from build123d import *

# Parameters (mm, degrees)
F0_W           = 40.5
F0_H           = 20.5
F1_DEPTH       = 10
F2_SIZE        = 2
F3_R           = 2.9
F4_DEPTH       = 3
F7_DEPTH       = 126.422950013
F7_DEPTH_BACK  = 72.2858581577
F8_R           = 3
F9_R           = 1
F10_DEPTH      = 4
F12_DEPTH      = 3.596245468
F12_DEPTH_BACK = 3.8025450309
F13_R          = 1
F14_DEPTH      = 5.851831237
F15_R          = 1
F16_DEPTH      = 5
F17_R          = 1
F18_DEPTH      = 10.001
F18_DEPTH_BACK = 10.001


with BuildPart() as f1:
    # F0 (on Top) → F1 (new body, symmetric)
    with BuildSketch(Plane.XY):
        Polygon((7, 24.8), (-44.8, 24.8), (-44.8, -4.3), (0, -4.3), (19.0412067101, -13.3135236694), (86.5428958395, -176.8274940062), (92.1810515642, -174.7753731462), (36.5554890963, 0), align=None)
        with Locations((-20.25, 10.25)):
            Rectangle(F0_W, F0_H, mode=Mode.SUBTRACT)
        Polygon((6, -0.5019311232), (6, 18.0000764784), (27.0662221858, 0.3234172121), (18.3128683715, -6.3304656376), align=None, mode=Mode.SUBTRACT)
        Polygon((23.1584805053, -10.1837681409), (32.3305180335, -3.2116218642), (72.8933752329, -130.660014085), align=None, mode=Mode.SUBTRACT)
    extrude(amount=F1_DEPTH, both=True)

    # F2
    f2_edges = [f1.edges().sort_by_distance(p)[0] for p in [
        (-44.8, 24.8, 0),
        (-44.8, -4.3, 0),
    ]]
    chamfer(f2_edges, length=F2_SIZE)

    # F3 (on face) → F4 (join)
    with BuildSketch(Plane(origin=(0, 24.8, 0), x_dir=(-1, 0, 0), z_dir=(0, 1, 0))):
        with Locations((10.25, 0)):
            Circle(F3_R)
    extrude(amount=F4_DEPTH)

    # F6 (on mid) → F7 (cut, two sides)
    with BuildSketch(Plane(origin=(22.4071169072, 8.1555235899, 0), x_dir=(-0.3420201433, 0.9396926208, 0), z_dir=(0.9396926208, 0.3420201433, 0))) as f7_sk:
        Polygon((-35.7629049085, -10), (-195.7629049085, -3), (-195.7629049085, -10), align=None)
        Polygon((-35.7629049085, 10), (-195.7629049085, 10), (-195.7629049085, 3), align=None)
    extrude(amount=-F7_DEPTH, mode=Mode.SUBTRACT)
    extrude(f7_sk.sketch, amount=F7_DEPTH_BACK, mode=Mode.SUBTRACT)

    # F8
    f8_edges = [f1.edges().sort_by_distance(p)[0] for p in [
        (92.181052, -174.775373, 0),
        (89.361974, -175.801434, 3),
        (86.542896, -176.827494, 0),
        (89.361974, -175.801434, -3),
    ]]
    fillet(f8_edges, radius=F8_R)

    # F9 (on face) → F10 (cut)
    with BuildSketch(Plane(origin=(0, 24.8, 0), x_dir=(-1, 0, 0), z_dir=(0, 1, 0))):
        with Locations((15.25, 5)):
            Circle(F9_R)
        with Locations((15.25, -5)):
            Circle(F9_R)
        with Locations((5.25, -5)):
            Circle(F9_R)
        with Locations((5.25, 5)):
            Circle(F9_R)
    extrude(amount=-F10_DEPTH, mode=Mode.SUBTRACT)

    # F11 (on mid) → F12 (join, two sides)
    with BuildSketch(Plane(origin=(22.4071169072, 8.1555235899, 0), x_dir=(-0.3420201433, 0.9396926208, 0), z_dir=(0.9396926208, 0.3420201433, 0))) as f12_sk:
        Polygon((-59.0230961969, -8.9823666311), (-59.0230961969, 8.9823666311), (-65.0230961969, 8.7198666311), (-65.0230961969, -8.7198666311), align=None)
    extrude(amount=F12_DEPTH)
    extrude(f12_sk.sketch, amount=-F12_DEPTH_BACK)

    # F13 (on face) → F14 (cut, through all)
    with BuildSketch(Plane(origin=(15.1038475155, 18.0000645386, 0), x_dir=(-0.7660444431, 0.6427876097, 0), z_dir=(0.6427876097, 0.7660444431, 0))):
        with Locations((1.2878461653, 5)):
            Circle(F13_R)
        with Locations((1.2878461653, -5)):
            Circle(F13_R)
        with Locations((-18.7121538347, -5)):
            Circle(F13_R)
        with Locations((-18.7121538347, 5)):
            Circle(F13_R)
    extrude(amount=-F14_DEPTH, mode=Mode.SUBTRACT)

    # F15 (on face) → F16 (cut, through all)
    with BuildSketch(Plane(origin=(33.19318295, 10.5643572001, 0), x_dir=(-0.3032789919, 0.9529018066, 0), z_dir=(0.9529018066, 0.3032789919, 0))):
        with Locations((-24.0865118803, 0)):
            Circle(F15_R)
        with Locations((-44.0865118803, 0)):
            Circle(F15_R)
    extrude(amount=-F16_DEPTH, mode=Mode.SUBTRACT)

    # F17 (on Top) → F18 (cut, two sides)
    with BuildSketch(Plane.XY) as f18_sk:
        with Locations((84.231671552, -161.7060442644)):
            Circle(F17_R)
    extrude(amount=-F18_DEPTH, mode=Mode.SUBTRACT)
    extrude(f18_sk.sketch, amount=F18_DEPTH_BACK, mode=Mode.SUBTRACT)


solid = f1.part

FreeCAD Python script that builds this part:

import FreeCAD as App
import Part
import Sketcher

V = App.Vector
Q = App.Units.Quantity


def edges_at(feature, points):
    """Names of the edges that pass closest to the given points."""
    edges = feature.Shape.Edges
    near = lambda p: min(range(len(edges)), key=lambda i: edges[i].distToShape(Part.Vertex(*p))[0])
    return sorted({f"Edge{near(p) + 1}" for p in points})


def add_polygon(sketch, points):
    """Adds a closed chain of lines whose ends are joined by coincident constraints."""
    first, n = sketch.GeometryCount, len(points)
    for a, b in zip(points, points[1:] + points[:1]):
        sketch.addGeometry(Part.LineSegment(App.Vector(*a, 0), App.Vector(*b, 0)), False)
    for i in range(n):
        sketch.addConstraint(Sketcher.Constraint("Coincident", first + i, 2, first + (i + 1) % n, 1))

doc = App.newDocument("Part")
body = doc.addObject("PartDesign::Body", "Body")

# Sketch on XY plane
sketch1 = body.newObject("Sketcher::SketchObject", "Sketch")
sketch1.AttachmentSupport = (doc.getObject("XY_Plane"), [""])
sketch1.MapMode = "FlatFace"
add_polygon(sketch1, [(7, 24.8), (-44.8, 24.8), (-44.8, -4.3), (0, -4.3), (19.041207, -13.313524), (86.542896, -176.827494), (92.181052, -174.775373), (36.555489, 0)])  # lines 0-7
add_polygon(sketch1, [(72.893375, -130.660014), (23.158481, -10.183768), (32.330518, -3.211622)])  # lines 8-10
add_polygon(sketch1, [(0, 0), (-40.5, 0), (-40.5, 20.5), (0, 20.5)])  # lines 11-14
add_polygon(sketch1, [(18.312868, -6.330466), (6, -0.501931), (6, 18.000076), (27.066222, 0.323417)])  # lines 15-18
sketch1.addConstraint([
    Sketcher.Constraint("Horizontal", 0),
    Sketcher.Constraint("Vertical", 1),
    Sketcher.Constraint("Horizontal", 2),
    Sketcher.Constraint("Horizontal", 11),
    Sketcher.Constraint("Vertical", 12),
    Sketcher.Constraint("Horizontal", 13),
    Sketcher.Constraint("Vertical", 14),
    Sketcher.Constraint("Vertical", 16),
    Sketcher.Constraint("Coincident", 14, 2, -1, 1),
    Sketcher.Constraint("PointOnObject", 2, 2, -2),
    Sketcher.Constraint("PointOnObject", 6, 2, -1),
    Sketcher.Constraint("Distance", 5, Q("6 mm")),
    Sketcher.Constraint("DistanceX", 0, 2, 0, 1, Q("51.8 mm")),
    Sketcher.Constraint("DistanceX", 2, 1, 2, 2, Q("44.8 mm")),
    Sketcher.Constraint("DistanceX", 11, 2, 11, 1, Q("40.5 mm")),
    Sketcher.Constraint("DistanceY", 1, 2, 1, 1, Q("29.1 mm")),
    Sketcher.Constraint("DistanceY", 12, 1, 12, 2, Q("20.5 mm")),
    Sketcher.Constraint("DistanceX", -1, 1, 15, 2, Q("6 mm")),
    Sketcher.Constraint("Distance", 17, Q("27.5 mm")),
    Sketcher.Constraint("DistanceY", -1, 1, 0, 2, Q("24.8 mm")),
    Sketcher.Constraint("DistanceY", 3, 2, 9, 2, Q("10.101902 mm")),
    Sketcher.Constraint("Distance", 7, Q("38.581951 mm")),
    Sketcher.Constraint("Distance", 8, Q("130.33835 mm")),
    Sketcher.Constraint("Distance", 9, Q("11.521159 mm")),
    Sketcher.Constraint("Distance", 15, Q("13.622722 mm")),
    Sketcher.Constraint("DistanceY", 16, 1, 16, 2, Q("18.502008 mm")),
    Sketcher.Constraint("DistanceX", -1, 1, 5, 2, Q("92.181052 mm")),
    Sketcher.Constraint("DistanceX", -1, 1, 8, 2, Q("23.158481 mm")),
    Sketcher.Constraint("DistanceY", 8, 2, -1, 1, Q("10.183768 mm")),
    Sketcher.Constraint("DistanceX", -1, 1, 9, 2, Q("32.330518 mm")),
    Sketcher.Constraint("DistanceY", 15, 2, -1, 1, Q("0.501931 mm")),
    Sketcher.Constraint("DistanceX", -1, 1, 18, 2, Q("18.312868 mm")),
    Sketcher.Constraint("DistanceX", 3, 2, 4, 2, Q("67.501689 mm")),
    Sketcher.Constraint("DistanceY", 4, 2, 3, 2, Q("163.51397 mm")),
    Sketcher.Constraint("DistanceY", 4, 2, 5, 2, Q("2.052121 mm")),
    Sketcher.Constraint("DistanceX", 10, 2, 4, 2, Q("13.649521 mm")),
    Sketcher.Constraint("DistanceY", 9, 2, 17, 2, Q("3.535039 mm")),
])
pad1 = body.newObject("PartDesign::Pad", "Pad")
pad1.Profile = sketch1
pad1.Length = 20
pad1.Midplane = True
doc.recompute()

chamfer = body.newObject("PartDesign::Chamfer", "Chamfer")
chamfer.Base = (pad1, edges_at(pad1, [(-44.8, 24.8, 0), (-44.8, -4.3, 0)]))
chamfer.Size = 2

# Sketch on XZ plane
sketch2 = body.newObject("Sketcher::SketchObject", "Sketch001")
sketch2.AttachmentSupport = (doc.getObject("XZ_Plane"), [""])
sketch2.MapMode = "FlatFace"
sketch2.AttachmentOffset = App.Placement(V(0, 0, -24.8), App.Rotation())
sketch2.addGeometry(Part.Circle(V(-10.2, 0, 0), V(0, 0, 1), 2.9), False)
sketch2.addConstraint([
    Sketcher.Constraint("PointOnObject", 0, 3, -1),
    Sketcher.Constraint("Diameter", 0, Q("5.8 mm")),
    Sketcher.Constraint("DistanceX", 0, 3, -1, 1, Q("10.25 mm")),
])
pad2 = body.newObject("PartDesign::Pad", "Pad001")
pad2.Profile = sketch2
pad2.Length = 3
pad2.Reversed = True

# Sketch on an angled plane
sketch3 = body.newObject("Sketcher::SketchObject", "Sketch002")
sketch3.Placement = App.Placement(V(22.407117, 8.155524, 0), App.Rotation(V(-0.342020143, 0.939692621, 0), V(0, 0, 1), V(0.939692621, 0.342020143, 0), "ZXY"))
add_polygon(sketch3, [(-36, -10), (-196, -3), (-196, -10)])  # lines 0-2
add_polygon(sketch3, [(-36, 10), (-196, 10), (-196, 3)])  # lines 3-5
sketch3.addConstraint([
    Sketcher.Constraint("Vertical", 1),
    Sketcher.Constraint("Horizontal", 2),
    Sketcher.Constraint("Horizontal", 3),
    Sketcher.Constraint("Vertical", 4),
    Sketcher.Constraint("Symmetric", 1, 2, 3, 2, -1),
    Sketcher.Constraint("Vertical", 2, 2, 5, 2),
    Sketcher.Constraint("Equal", 1, 4),
    Sketcher.Constraint("DistanceX", 2, 1, 2, 2, Q("160 mm")),
    Sketcher.Constraint("DistanceY", 1, 2, 1, 1, Q("7 mm")),
    Sketcher.Constraint("DistanceY", 0, 2, -1, 1, Q("3 mm")),
    Sketcher.Constraint("DistanceX", 0, 2, -1, 1, Q("195.762905 mm")),
])
pocket1 = body.newObject("PartDesign::Pocket", "Pocket")
pocket1.Profile = sketch3
pocket1.Type = "ThroughAll"
pocket1.Midplane = True
doc.recompute()

fillet = body.newObject("PartDesign::Fillet", "Fillet")
fillet.Base = (pocket1, edges_at(pocket1, [
    (92.181, -174.775, 0),
    (89.362, -175.801, 3),
    (86.543, -176.827, 0),
    (89.362, -175.801, -3),
]))
fillet.Radius = 3

# Sketch on XZ plane
sketch4 = body.newObject("Sketcher::SketchObject", "Sketch003")
sketch4.AttachmentSupport = (doc.getObject("XZ_Plane"), [""])
sketch4.MapMode = "FlatFace"
sketch4.AttachmentOffset = App.Placement(V(0, 0, -24.8), App.Rotation())
sketch4.addGeometry([
    Part.Circle(V(-15.2, 5, 0), V(0, 0, 1), 1),
    Part.Circle(V(-15.2, -5, 0), V(0, 0, 1), 1),
    Part.Circle(V(-5.2, -5, 0), V(0, 0, 1), 1),
    Part.Circle(V(-5.2, 5, 0), V(0, 0, 1), 1),
], False)
sketch4.addConstraint([
    Sketcher.Constraint("Equal", 0, 1),
    Sketcher.Constraint("Equal", 1, 2),
    Sketcher.Constraint("Equal", 2, 3),
    Sketcher.Constraint("Symmetric", 0, 3, 1, 3, -1),
    Sketcher.Constraint("Symmetric", 2, 3, 3, 3, -1),
    Sketcher.Constraint("Horizontal", 1, 3, 2, 3),
    Sketcher.Constraint("Diameter", 0, Q("2 mm")),
    Sketcher.Constraint("DistanceY", -1, 1, 0, 3, Q("5 mm")),
    Sketcher.Constraint("DistanceX", 1, 3, 2, 3, Q("10 mm")),
    Sketcher.Constraint("DistanceX", 0, 3, -1, 1, Q("15.25 mm")),
])
pocket2 = body.newObject("PartDesign::Pocket", "Pocket001")
pocket2.Profile = sketch4
pocket2.Length = 4
pocket2.Reversed = True

# Sketch on an angled plane
sketch5 = body.newObject("Sketcher::SketchObject", "Sketch004")
sketch5.Placement = App.Placement(V(22.407117, 8.155524, 0), App.Rotation(V(-0.342020143, 0.939692621, 0), V(0, 0, 1), V(0.939692621, 0.342020143, 0), "ZXY"))
add_polygon(sketch5, [(-59.023096, -8.982367), (-59.023096, 8.982367), (-65.023096, 8.719867), (-65.023096, -8.719867)])  # lines 0-3
sketch5.addConstraint([
    Sketcher.Constraint("Vertical", 0),
    Sketcher.Constraint("Vertical", 2),
    Sketcher.Constraint("Equal", 1, 3),
    Sketcher.Constraint("DistanceX", 1, 2, 0, 2, Q("6 mm")),
    Sketcher.Constraint("DistanceY", 1, 2, 0, 2, Q("0.2625 mm")),
    Sketcher.Constraint("DistanceY", 0, 1, 0, 2, Q("17.964733 mm")),
    Sketcher.Constraint("DistanceX", 0, 2, -1, 1, Q("59.023096 mm")),
    Sketcher.Constraint("DistanceY", -1, 1, 0, 2, Q("8.982367 mm")),
])
pad3 = body.newObject("PartDesign::Pad", "Pad002")
pad3.Profile = sketch5
pad3.Type = "TwoLengths"
pad3.Length = 3.596245
pad3.Length2 = 3.802545

# Sketch on an angled plane
sketch6 = body.newObject("Sketcher::SketchObject", "Sketch005")
sketch6.Placement = App.Placement(V(15.103848, 18.000065, 0), App.Rotation(V(-0.766044443, 0.64278761, 0), V(0, 0, 1), V(0.64278761, 0.766044443, 0), "ZXY"))
sketch6.addGeometry([
    Part.Circle(V(1.3, 5, 0), V(0, 0, 1), 1),
    Part.Circle(V(1.3, -5, 0), V(0, 0, 1), 1),
    Part.Circle(V(-18.7, -5, 0), V(0, 0, 1), 1),
    Part.Circle(V(-18.7, 5, 0), V(0, 0, 1), 1),
], False)
sketch6.addConstraint([
    Sketcher.Constraint("Equal", 0, 1),
    Sketcher.Constraint("Equal", 1, 2),
    Sketcher.Constraint("Equal", 2, 3),
    Sketcher.Constraint("Symmetric", 0, 3, 1, 3, -1),
    Sketcher.Constraint("Symmetric", 2, 3, 3, 3, -1),
    Sketcher.Constraint("Horizontal", 1, 3, 2, 3),
    Sketcher.Constraint("Diameter", 0, Q("2 mm")),
    Sketcher.Constraint("DistanceY", -1, 1, 0, 3, Q("5 mm")),
    Sketcher.Constraint("DistanceX", 2, 3, 1, 3, Q("20 mm")),
    Sketcher.Constraint("DistanceX", -1, 1, 0, 3, Q("1.287846 mm")),
])
pocket3 = body.newObject("PartDesign::Pocket", "Pocket002")
pocket3.Profile = sketch6
pocket3.Length = 5.851831

# Sketch on an angled plane
sketch7 = body.newObject("Sketcher::SketchObject", "Sketch006")
sketch7.Placement = App.Placement(V(33.193183, 10.564357, 0), App.Rotation(V(-0.303278992, 0.952901807, 0), V(0, 0, 1.000000001), V(0.952901807, 0.303278992, 0), "ZXY"))
sketch7.addGeometry([
    Part.Circle(V(-24.1, 0, 0), V(0, 0, 1), 1),
    Part.Circle(V(-44.1, 0, 0), V(0, 0, 1), 1),
], False)
sketch7.addConstraint([
    Sketcher.Constraint("Equal", 0, 1),
    Sketcher.Constraint("PointOnObject", 0, 3, -1),
    Sketcher.Constraint("PointOnObject", 1, 3, -1),
    Sketcher.Constraint("Diameter", 0, Q("2 mm")),
    Sketcher.Constraint("DistanceX", 1, 3, 0, 3, Q("20 mm")),
    Sketcher.Constraint("DistanceX", 0, 3, -1, 1, Q("24.086512 mm")),
])
pocket4 = body.newObject("PartDesign::Pocket", "Pocket003")
pocket4.Profile = sketch7
pocket4.Length = 5

# Sketch on XY plane
sketch8 = body.newObject("Sketcher::SketchObject", "Sketch007")
sketch8.AttachmentSupport = (doc.getObject("XY_Plane"), [""])
sketch8.MapMode = "FlatFace"
sketch8.addGeometry(Part.Circle(V(84.2, -161.7, 0), V(0, 0, 1), 1), False)
sketch8.addConstraint([
    Sketcher.Constraint("Diameter", 0, Q("2 mm")),
    Sketcher.Constraint("DistanceX", -1, 1, 0, 3, Q("84.231672 mm")),
    Sketcher.Constraint("DistanceY", 0, 3, -1, 1, Q("161.706044 mm")),
])
pocket5 = body.newObject("PartDesign::Pocket", "Pocket004")
pocket5.Profile = sketch8
pocket5.Type = "ThroughAll"
pocket5.Midplane = True

doc.recompute()
